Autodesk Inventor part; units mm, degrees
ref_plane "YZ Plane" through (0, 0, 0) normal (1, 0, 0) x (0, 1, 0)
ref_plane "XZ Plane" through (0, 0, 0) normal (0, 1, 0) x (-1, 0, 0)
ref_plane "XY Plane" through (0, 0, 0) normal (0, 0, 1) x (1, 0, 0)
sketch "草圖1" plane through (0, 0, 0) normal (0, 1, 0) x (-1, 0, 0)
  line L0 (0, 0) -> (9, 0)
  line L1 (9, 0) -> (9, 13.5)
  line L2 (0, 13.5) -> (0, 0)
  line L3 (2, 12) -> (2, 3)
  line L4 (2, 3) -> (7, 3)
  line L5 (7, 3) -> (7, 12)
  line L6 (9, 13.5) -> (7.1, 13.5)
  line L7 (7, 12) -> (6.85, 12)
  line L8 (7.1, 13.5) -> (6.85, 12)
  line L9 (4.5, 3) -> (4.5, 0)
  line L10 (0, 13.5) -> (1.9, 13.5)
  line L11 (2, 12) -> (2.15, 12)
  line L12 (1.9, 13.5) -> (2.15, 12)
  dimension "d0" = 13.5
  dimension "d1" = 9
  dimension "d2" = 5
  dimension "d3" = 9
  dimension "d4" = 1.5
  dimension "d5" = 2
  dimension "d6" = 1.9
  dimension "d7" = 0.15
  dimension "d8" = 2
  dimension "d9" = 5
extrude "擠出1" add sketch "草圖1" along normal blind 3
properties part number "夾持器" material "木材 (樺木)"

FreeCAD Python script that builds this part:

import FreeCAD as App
import Part
import Sketcher
Q = App.Units.Quantity

doc = App.newDocument("Part")
params = doc.addObject("Spreadsheet::Sheet", "Params")
for row, (alias, value) in enumerate([
    ("sketch1_width", "9 mm"),
    ("sketch1_width2", "5 mm"),
    ("sketch1_width3", "1.9 mm"),
    ("sketch1_height", "13.5 mm"),
    ("sketch1_width4", "0.15 mm"),
    ("pad1_length", "3 mm"),
], start=1):
    params.set(f"A{row}", alias)
    params.set(f"B{row}", "=" + value)
    params.setAlias(f"B{row}", alias)

body = doc.addObject("PartDesign::Body", "Body")

sketch1 = body.newObject("Sketcher::SketchObject", "Sketch")
sketch1.AttachmentSupport = (doc.getObject("XZ_Plane"), [""])
sketch1.MapMode = "FlatFace"
sketch1.addGeometry(Part.LineSegment(App.Vector(0, 13.5, 0), App.Vector(0, 0, 0)), False)
sketch1.addGeometry(Part.LineSegment(App.Vector(0, 0, 0), App.Vector(-9, 0, 0)), False)
sketch1.addGeometry(Part.LineSegment(App.Vector(-9, 0, 0), App.Vector(-9, 13.5, 0)), False)
sketch1.addGeometry(Part.LineSegment(App.Vector(-9, 13.5, 0), App.Vector(-7.1, 13.5, 0)), False)
sketch1.addGeometry(Part.LineSegment(App.Vector(-7.1, 13.5, 0), App.Vector(-6.85, 12, 0)), False)
sketch1.addGeometry(Part.LineSegment(App.Vector(-6.85, 12, 0), App.Vector(-7, 12, 0)), False)
sketch1.addGeometry(Part.LineSegment(App.Vector(-7, 12, 0), App.Vector(-7, 3, 0)), False)
sketch1.addGeometry(Part.LineSegment(App.Vector(-7, 3, 0), App.Vector(-2, 3, 0)), False)
sketch1.addGeometry(Part.LineSegment(App.Vector(-2, 3, 0), App.Vector(-2, 12, 0)), False)
sketch1.addGeometry(Part.LineSegment(App.Vector(-2, 12, 0), App.Vector(-2.15, 12, 0)), False)
sketch1.addGeometry(Part.LineSegment(App.Vector(-2.15, 12, 0), App.Vector(-1.9, 13.5, 0)), False)
sketch1.addGeometry(Part.LineSegment(App.Vector(-1.9, 13.5, 0), App.Vector(0, 13.5, 0)), False)
sketch1.addConstraint(Sketcher.Constraint("Coincident", 0, 2, 1, 1))
sketch1.addConstraint(Sketcher.Constraint("Coincident", 1, 2, 2, 1))
sketch1.addConstraint(Sketcher.Constraint("Coincident", 2, 2, 3, 1))
sketch1.addConstraint(Sketcher.Constraint("Coincident", 3, 2, 4, 1))
sketch1.addConstraint(Sketcher.Constraint("Coincident", 4, 2, 5, 1))
sketch1.addConstraint(Sketcher.Constraint("Coincident", 5, 2, 6, 1))
sketch1.addConstraint(Sketcher.Constraint("Coincident", 6, 2, 7, 1))
sketch1.addConstraint(Sketcher.Constraint("Coincident", 7, 2, 8, 1))
sketch1.addConstraint(Sketcher.Constraint("Coincident", 8, 2, 9, 1))
sketch1.addConstraint(Sketcher.Constraint("Coincident", 9, 2, 10, 1))
sketch1.addConstraint(Sketcher.Constraint("Coincident", 10, 2, 11, 1))
sketch1.addConstraint(Sketcher.Constraint("Coincident", 11, 2, 0, 1))
sketch1.addConstraint(Sketcher.Constraint("Vertical", 0))
sketch1.addConstraint(Sketcher.Constraint("Horizontal", 1))
sketch1.addConstraint(Sketcher.Constraint("Vertical", 2))
sketch1.addConstraint(Sketcher.Constraint("Horizontal", 3))
sketch1.addConstraint(Sketcher.Constraint("Horizontal", 5))
sketch1.addConstraint(Sketcher.Constraint("Vertical", 6))
sketch1.addConstraint(Sketcher.Constraint("Horizontal", 7))
sketch1.addConstraint(Sketcher.Constraint("Vertical", 8))
sketch1.addConstraint(Sketcher.Constraint("Horizontal", 9))
sketch1.addConstraint(Sketcher.Constraint("Horizontal", 11))
sketch1.addConstraint(Sketcher.Constraint("Coincident", 0, 2, -1, 1))
sketch1.addConstraint(Sketcher.Constraint("Horizontal", 5, 2, 8, 2))
sketch1.addConstraint(Sketcher.Constraint("Horizontal", 3, 2, 10, 2))
sketch1.addConstraint(Sketcher.Constraint("Equal", 5, 9))
sketch1.addConstraint(Sketcher.Constraint("Equal", 3, 11))
sketch1.addConstraint(Sketcher.Constraint("Equal", 1, 6))
sketch1.addConstraint(Sketcher.Constraint("Equal", 4, 10))
sketch1.addConstraint(Sketcher.Constraint("DistanceX", 1, 2, 1, 1, Q("9 mm")))
sketch1.addConstraint(Sketcher.Constraint("DistanceX", 7, 1, 7, 2, Q("5 mm")))
sketch1.addConstraint(Sketcher.Constraint("DistanceX", 3, 1, 3, 2, Q("1.9 mm")))
sketch1.addConstraint(Sketcher.Constraint("DistanceY", 0, 2, 0, 1, Q("13.5 mm")))
sketch1.addConstraint(Sketcher.Constraint("DistanceX", 5, 2, 5, 1, Q("0.15 mm")))
sketch1.addConstraint(Sketcher.Constraint("DistanceY", 4, 2, 3, 2, Q("1.5 mm")))
sketch1.setExpression("Constraints[29]", "Params.sketch1_width")
sketch1.setExpression("Constraints[30]", "Params.sketch1_width2")
sketch1.setExpression("Constraints[31]", "Params.sketch1_width3")
sketch1.setExpression("Constraints[32]", "Params.sketch1_height")
sketch1.setExpression("Constraints[33]", "Params.sketch1_width4")
pad1 = body.newObject("PartDesign::Pad", "Pad")
pad1.Profile = sketch1
pad1.setExpression("Length", "Params.pad1_length")
pad1.Reversed = True

doc.recompute()
